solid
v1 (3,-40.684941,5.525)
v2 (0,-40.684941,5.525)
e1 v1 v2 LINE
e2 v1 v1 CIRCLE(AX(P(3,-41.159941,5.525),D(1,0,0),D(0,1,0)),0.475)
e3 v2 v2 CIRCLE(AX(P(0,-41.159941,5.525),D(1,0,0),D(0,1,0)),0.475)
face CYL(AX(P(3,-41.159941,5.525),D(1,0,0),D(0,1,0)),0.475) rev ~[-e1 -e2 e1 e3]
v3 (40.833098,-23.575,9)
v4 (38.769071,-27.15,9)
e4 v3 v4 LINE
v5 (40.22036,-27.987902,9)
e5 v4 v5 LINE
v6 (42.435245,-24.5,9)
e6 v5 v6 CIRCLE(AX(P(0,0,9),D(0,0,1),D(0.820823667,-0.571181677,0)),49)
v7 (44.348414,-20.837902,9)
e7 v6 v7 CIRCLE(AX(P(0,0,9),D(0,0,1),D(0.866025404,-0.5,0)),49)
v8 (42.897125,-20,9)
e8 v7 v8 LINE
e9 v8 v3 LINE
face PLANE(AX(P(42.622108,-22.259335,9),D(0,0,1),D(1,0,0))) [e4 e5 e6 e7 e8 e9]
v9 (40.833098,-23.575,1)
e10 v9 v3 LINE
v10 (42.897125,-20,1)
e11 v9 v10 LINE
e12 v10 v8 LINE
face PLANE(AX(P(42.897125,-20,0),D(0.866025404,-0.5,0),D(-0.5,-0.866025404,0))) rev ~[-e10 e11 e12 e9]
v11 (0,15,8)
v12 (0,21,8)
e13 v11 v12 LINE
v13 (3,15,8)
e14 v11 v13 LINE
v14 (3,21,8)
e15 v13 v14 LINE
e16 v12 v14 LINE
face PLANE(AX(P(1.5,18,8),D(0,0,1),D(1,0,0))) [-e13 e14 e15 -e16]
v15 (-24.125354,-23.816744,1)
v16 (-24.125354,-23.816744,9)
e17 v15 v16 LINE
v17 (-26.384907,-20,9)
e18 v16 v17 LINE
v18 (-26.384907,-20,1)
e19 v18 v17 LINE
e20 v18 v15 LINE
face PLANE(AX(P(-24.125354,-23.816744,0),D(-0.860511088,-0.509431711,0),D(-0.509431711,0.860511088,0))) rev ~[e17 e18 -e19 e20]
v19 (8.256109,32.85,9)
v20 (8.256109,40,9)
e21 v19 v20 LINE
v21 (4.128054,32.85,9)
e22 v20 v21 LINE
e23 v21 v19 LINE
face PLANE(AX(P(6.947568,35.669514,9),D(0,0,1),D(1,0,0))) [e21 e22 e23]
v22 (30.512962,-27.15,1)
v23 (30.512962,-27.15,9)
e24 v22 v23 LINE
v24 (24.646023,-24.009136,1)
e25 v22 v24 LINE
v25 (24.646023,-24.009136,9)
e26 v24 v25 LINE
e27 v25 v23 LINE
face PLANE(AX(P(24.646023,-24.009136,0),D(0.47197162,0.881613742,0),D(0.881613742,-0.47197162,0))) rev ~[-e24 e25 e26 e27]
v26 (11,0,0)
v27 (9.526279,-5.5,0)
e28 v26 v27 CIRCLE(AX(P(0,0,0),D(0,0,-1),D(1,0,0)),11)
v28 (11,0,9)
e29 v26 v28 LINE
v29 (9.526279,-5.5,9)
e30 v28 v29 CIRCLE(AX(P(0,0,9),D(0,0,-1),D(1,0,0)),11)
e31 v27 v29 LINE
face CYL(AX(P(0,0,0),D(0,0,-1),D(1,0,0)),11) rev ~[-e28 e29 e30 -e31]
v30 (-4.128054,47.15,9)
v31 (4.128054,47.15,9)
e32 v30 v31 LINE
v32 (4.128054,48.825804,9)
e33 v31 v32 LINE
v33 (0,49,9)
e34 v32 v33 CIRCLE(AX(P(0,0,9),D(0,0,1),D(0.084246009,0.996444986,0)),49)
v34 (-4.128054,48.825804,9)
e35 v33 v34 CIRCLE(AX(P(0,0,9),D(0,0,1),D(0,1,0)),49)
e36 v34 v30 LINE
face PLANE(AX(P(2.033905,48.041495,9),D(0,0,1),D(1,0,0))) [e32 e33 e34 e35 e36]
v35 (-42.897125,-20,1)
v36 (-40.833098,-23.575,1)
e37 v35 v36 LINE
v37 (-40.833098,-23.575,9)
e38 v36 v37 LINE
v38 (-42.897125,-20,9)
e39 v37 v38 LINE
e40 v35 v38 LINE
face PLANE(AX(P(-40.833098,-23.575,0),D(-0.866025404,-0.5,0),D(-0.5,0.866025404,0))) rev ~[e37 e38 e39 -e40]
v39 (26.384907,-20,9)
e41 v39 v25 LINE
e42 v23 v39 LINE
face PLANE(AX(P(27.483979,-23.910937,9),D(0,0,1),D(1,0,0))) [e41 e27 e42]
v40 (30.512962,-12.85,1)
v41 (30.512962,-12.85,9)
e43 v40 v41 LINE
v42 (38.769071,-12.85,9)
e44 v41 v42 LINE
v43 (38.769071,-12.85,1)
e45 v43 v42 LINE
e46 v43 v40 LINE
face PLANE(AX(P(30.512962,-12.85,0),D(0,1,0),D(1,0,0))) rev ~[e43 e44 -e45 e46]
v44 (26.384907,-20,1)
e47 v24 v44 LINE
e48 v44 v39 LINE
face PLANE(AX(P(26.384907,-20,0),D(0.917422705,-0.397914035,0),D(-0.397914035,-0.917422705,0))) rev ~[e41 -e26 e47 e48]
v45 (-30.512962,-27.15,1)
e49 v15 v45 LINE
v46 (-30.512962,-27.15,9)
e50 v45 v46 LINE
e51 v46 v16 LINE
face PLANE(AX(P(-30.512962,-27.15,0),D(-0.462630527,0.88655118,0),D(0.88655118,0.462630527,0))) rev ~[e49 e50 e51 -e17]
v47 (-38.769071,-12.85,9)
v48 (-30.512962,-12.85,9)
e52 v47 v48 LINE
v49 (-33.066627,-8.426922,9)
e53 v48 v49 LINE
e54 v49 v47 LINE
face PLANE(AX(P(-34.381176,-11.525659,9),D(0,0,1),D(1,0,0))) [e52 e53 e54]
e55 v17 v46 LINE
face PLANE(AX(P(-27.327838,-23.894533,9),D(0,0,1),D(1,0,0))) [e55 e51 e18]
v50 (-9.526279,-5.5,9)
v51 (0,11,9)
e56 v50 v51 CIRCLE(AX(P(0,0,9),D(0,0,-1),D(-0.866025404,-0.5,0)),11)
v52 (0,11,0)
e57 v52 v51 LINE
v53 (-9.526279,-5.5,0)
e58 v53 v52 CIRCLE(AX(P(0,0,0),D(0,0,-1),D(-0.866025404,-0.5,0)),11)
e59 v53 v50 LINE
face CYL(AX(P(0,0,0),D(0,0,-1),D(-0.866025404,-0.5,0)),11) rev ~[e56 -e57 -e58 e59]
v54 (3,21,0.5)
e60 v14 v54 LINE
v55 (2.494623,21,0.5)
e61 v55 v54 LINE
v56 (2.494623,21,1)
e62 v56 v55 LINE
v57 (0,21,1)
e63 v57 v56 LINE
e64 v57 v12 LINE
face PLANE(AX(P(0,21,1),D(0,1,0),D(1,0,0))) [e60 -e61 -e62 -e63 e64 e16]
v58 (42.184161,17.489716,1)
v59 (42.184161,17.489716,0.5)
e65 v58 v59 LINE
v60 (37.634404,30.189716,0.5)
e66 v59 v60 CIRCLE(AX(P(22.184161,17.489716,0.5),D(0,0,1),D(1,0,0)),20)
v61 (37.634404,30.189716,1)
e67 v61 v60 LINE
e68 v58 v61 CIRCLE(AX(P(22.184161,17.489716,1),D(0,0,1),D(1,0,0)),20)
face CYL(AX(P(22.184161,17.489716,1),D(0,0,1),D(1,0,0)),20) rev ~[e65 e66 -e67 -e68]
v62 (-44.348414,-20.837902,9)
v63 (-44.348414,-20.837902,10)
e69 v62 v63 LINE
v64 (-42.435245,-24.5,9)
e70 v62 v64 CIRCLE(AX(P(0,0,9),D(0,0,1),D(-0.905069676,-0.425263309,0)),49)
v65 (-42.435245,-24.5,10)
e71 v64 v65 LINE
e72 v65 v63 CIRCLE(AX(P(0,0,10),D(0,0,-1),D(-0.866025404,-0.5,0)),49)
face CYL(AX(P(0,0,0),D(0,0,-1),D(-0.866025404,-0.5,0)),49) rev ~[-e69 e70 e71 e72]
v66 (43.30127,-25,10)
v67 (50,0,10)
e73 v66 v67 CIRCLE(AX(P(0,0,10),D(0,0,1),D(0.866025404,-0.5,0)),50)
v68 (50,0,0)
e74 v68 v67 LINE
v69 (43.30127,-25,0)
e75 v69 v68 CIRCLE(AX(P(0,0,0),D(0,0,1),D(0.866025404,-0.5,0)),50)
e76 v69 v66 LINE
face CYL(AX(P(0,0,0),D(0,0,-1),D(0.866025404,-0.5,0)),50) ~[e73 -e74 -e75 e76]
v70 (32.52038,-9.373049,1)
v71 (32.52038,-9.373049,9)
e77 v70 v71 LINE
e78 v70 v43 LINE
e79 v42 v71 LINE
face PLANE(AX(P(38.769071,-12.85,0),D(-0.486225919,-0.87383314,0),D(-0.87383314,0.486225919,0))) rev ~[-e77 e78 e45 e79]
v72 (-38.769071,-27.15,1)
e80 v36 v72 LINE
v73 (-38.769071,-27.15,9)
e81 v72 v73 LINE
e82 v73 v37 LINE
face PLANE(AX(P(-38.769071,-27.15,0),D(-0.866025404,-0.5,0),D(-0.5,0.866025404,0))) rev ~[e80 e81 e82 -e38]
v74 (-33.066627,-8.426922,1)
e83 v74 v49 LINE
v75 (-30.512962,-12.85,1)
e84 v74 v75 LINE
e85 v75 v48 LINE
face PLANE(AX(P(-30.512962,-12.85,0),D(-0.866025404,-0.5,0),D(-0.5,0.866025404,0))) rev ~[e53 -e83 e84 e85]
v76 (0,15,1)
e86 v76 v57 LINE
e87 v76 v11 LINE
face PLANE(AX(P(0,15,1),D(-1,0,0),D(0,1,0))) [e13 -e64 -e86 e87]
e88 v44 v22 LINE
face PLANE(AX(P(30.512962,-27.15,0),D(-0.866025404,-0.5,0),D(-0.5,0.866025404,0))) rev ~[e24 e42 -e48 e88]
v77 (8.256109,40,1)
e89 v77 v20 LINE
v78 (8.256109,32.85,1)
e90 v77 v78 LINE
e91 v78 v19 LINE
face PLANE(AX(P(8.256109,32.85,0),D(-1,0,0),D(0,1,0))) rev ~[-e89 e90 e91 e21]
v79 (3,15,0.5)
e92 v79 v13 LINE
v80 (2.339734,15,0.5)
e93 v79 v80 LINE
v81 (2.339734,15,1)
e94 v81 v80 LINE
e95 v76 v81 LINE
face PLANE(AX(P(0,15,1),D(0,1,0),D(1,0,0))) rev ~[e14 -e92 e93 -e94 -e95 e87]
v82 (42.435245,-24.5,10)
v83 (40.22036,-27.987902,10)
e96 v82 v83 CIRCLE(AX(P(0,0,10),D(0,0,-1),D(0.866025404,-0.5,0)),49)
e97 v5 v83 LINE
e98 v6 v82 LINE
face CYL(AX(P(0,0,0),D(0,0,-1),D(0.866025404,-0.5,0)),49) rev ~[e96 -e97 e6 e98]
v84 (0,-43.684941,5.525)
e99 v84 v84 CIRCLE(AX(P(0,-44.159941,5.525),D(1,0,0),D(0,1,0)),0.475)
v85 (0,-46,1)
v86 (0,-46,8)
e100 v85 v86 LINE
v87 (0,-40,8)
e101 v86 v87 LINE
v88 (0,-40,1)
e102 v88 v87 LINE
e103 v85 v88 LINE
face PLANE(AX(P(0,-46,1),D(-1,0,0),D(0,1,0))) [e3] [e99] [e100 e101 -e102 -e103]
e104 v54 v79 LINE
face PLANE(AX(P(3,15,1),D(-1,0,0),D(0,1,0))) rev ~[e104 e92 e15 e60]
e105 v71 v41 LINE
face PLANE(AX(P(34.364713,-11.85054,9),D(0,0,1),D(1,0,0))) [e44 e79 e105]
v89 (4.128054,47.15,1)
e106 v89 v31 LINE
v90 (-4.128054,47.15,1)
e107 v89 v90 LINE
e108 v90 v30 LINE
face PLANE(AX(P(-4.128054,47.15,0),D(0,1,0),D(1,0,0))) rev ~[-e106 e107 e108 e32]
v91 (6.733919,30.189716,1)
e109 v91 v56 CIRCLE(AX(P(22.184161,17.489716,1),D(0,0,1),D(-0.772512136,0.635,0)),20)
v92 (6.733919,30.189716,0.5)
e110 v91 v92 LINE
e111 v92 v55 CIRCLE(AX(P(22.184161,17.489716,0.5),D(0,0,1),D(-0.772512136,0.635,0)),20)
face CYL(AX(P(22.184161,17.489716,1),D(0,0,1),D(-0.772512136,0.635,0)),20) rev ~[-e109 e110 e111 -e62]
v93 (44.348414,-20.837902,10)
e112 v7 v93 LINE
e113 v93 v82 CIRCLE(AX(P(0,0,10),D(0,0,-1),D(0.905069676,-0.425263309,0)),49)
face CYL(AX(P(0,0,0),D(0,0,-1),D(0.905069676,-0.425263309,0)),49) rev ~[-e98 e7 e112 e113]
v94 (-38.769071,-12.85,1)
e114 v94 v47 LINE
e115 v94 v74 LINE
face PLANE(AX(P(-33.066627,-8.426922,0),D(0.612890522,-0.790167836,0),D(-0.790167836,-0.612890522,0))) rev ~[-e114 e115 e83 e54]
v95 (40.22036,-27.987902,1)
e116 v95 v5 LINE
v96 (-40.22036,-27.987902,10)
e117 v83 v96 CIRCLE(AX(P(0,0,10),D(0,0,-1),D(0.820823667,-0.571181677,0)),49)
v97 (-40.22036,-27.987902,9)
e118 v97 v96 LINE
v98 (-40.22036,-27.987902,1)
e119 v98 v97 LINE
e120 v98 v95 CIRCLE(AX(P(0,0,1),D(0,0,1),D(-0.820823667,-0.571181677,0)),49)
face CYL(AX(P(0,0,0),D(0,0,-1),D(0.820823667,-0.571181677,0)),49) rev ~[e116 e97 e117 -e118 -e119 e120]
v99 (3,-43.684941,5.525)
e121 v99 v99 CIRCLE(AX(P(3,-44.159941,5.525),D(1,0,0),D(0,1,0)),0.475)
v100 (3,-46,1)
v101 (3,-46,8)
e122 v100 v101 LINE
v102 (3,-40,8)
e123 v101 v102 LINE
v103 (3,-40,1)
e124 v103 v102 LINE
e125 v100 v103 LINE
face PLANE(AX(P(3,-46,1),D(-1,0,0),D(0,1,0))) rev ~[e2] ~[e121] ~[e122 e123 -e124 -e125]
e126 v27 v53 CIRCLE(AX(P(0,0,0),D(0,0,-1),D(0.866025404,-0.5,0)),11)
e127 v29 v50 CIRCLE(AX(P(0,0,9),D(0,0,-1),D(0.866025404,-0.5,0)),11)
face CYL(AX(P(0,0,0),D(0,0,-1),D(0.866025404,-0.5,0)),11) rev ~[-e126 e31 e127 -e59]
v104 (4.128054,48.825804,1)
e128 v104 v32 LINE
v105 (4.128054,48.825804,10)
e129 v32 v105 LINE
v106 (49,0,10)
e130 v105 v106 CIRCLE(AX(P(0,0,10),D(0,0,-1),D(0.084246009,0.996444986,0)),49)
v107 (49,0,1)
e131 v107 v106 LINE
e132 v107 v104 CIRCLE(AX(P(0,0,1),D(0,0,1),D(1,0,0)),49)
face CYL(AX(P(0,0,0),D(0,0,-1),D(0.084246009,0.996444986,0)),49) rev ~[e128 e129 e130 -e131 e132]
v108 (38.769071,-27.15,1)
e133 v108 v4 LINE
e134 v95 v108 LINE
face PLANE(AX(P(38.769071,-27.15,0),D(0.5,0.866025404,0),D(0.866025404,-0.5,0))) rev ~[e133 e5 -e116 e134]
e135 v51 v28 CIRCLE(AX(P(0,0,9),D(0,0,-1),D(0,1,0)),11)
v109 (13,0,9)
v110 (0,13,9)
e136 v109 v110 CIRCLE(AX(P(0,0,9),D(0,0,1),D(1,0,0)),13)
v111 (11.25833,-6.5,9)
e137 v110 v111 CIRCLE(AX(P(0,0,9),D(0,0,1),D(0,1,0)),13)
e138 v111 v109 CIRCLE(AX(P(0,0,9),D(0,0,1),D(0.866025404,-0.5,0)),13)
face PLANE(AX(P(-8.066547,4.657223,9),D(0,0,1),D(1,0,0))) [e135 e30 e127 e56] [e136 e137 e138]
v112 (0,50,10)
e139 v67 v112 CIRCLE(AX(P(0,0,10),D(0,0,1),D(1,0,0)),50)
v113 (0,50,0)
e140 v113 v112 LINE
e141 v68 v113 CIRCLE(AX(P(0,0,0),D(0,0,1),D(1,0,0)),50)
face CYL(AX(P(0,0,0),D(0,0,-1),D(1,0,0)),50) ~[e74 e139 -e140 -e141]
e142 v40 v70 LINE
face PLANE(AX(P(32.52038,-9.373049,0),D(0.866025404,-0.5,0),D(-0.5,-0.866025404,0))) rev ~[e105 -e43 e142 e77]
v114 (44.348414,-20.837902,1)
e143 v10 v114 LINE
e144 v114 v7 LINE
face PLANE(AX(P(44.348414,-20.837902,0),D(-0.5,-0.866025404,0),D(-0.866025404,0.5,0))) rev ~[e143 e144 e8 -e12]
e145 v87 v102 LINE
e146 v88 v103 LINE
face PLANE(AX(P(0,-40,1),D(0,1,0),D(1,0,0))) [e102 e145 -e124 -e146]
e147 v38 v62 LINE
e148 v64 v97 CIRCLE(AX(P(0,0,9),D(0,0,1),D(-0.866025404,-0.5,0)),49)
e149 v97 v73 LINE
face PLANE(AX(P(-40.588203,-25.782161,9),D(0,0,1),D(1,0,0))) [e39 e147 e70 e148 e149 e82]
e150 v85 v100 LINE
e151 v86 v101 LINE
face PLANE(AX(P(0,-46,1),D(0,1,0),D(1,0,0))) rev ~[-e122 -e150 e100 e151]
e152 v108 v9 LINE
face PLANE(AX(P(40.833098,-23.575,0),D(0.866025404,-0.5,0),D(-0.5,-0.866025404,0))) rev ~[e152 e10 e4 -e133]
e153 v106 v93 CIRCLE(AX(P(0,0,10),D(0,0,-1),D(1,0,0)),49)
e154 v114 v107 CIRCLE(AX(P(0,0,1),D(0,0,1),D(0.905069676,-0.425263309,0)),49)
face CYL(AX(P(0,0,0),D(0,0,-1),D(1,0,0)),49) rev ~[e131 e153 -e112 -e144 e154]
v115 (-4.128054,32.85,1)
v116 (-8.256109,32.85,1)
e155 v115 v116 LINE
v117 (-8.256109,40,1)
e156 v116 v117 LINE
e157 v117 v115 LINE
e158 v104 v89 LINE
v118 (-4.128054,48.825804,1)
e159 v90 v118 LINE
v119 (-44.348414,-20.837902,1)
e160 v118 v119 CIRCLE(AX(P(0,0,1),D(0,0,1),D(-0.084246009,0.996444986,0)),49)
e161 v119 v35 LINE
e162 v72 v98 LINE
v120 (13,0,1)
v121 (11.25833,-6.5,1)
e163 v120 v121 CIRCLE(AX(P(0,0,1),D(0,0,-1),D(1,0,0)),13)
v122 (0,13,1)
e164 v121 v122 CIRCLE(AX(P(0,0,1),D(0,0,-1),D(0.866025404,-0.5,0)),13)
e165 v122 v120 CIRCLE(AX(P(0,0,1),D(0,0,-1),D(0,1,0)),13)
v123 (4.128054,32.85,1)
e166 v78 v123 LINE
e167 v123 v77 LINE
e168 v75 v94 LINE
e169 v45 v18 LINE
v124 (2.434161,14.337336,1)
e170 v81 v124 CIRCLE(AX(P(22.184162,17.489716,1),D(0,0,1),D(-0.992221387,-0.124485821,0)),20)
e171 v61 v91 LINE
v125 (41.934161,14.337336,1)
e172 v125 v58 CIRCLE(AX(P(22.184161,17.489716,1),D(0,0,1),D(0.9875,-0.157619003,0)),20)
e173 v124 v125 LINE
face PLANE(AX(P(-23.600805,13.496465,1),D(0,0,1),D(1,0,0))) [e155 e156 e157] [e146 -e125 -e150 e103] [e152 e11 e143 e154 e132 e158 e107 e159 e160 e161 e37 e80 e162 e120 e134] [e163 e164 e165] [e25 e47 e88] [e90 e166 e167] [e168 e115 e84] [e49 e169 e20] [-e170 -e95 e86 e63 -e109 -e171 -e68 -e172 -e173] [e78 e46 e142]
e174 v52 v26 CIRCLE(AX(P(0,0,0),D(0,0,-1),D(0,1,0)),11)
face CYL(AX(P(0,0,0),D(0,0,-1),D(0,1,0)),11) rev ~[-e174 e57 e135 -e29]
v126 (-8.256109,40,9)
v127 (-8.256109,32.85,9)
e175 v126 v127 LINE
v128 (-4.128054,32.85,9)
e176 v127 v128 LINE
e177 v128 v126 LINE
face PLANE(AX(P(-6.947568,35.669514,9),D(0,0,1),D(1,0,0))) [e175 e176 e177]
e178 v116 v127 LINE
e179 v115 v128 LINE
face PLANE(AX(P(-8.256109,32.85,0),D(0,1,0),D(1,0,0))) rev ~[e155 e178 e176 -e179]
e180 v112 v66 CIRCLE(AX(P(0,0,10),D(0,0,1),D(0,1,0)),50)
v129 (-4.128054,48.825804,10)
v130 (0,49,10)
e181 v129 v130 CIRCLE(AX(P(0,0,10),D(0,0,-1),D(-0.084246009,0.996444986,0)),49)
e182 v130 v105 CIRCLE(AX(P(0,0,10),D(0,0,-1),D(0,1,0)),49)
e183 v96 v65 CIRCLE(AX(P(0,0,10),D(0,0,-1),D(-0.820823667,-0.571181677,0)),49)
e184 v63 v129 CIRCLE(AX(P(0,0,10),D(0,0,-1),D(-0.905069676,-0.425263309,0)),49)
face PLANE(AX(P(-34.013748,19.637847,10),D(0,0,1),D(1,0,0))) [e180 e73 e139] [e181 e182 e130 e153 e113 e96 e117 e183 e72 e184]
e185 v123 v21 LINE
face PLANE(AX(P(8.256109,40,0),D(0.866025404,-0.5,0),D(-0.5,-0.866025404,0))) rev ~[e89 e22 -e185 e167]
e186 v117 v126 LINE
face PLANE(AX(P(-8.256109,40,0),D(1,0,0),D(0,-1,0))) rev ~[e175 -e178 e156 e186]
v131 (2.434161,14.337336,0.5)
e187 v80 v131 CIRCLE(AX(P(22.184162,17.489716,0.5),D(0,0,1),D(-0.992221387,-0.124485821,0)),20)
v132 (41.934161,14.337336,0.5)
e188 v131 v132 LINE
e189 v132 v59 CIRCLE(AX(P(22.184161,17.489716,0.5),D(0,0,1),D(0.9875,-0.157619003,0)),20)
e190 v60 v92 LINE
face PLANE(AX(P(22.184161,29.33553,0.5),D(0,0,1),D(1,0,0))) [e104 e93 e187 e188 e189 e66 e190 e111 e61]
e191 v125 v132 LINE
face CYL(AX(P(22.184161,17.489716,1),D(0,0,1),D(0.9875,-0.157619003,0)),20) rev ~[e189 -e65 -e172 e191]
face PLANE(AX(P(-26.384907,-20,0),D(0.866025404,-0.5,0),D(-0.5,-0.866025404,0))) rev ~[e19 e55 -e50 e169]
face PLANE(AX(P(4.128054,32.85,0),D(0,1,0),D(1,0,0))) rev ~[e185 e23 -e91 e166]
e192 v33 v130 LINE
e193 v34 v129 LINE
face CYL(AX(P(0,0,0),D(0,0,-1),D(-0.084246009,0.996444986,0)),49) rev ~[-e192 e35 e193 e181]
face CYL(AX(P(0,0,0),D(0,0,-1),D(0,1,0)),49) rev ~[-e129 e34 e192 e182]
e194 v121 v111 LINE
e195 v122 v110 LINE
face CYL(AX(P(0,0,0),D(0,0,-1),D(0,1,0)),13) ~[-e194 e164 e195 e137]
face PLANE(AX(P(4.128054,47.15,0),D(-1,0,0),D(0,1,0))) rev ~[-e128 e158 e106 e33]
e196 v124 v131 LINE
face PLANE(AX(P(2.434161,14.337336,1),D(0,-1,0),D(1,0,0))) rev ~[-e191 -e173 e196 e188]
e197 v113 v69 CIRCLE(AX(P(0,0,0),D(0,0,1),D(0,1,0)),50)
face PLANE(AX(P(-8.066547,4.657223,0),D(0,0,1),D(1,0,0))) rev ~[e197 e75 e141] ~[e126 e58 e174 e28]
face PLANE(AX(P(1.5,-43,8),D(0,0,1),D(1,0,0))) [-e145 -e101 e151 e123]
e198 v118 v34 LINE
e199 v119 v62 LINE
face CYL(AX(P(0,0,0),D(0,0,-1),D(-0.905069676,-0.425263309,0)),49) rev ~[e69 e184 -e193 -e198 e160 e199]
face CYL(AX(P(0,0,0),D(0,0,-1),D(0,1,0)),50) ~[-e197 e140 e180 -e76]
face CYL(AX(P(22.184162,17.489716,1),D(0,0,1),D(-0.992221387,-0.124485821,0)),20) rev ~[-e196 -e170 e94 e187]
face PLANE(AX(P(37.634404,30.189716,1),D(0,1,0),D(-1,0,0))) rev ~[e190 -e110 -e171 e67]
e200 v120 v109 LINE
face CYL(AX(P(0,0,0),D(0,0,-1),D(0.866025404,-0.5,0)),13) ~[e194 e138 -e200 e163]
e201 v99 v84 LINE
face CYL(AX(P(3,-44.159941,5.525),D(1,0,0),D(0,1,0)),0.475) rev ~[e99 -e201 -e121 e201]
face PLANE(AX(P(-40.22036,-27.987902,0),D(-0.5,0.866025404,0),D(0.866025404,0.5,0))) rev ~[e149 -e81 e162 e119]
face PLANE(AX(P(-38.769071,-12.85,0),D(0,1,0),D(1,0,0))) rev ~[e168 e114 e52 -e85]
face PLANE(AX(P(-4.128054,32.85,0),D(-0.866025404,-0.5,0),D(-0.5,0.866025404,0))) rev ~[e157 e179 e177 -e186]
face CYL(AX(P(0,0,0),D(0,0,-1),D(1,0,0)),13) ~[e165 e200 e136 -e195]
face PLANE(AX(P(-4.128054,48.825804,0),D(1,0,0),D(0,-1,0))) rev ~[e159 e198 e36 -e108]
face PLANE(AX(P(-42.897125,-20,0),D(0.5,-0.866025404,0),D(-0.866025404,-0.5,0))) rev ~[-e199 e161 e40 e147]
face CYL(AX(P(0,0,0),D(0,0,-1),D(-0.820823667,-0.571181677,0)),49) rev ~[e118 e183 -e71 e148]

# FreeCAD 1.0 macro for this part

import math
import FreeCAD as App
import Part
import Sketcher

V = App.Vector
Q = App.Units.Quantity


def add_polygon(sketch, points):
    """Adds a closed chain of lines whose ends are joined by coincident constraints."""
    first, n = sketch.GeometryCount, len(points)
    for a, b in zip(points, points[1:] + points[:1]):
        sketch.addGeometry(Part.LineSegment(App.Vector(*a, 0), App.Vector(*b, 0)), False)
    for i in range(n):
        sketch.addConstraint(Sketcher.Constraint("Coincident", first + i, 2, first + (i + 1) % n, 1))

doc = App.newDocument("Part")
body = doc.addObject("PartDesign::Body", "Body")

# Sketch on XY plane
sketch1 = doc.addObject("Sketcher::SketchObject", "Sketch")
body.addObject(sketch1)
sketch1.AttachmentSupport = (doc.XY_Plane, [""])
sketch1.MapMode = "FlatFace"
sketch1.addGeometry(Part.ArcOfCircle(Part.Circle(V(0, 0, 0), V(0, 0, 1), 50), math.radians(90), math.radians(330)), False)
sketch1.addGeometry(Part.ArcOfCircle(Part.Circle(V(0, 0, 0), V(0, 0, 1), 50), math.radians(-30), math.radians(0)), False)
sketch1.addGeometry(Part.ArcOfCircle(Part.Circle(V(0, 0, 0), V(0, 0, 1), 50), math.radians(0), math.radians(90)), False)
sketch1.addGeometry(Part.ArcOfCircle(Part.Circle(V(0, 0, 0), V(0, 0, 1), 49), math.radians(90), math.radians(94.83)), False)
sketch1.addGeometry(Part.ArcOfCircle(Part.Circle(V(0, 0, 0), V(0, 0, 1), 49), math.radians(85.17), math.radians(90)), False)
sketch1.addGeometry(Part.ArcOfCircle(Part.Circle(V(0, 0, 0), V(0, 0, 1), 49), math.radians(0), math.radians(85)), False)
sketch1.addGeometry(Part.ArcOfCircle(Part.Circle(V(0, 0, 0), V(0, 0, 1), 49), math.radians(-25), math.radians(0)), False)
sketch1.addGeometry(Part.ArcOfCircle(Part.Circle(V(0, 0, 0), V(0, 0, 1), 49), math.radians(-30), math.radians(-25.17)), False)
sketch1.addGeometry(Part.ArcOfCircle(Part.Circle(V(0, 0, 0), V(0, 0, 1), 49), math.radians(-34.83), math.radians(-30)), False)
sketch1.addGeometry(Part.ArcOfCircle(Part.Circle(V(0, 0, 0), V(0, 0, 1), 49), math.radians(-145), math.radians(-35)), False)
sketch1.addGeometry(Part.ArcOfCircle(Part.Circle(V(0, 0, 0), V(0, 0, 1), 49), math.radians(-150), math.radians(-145.17)), False)
sketch1.addGeometry(Part.ArcOfCircle(Part.Circle(V(0, 0, 0), V(0, 0, 1), 49), math.radians(-154.83), math.radians(-150)), False)
sketch1.addGeometry(Part.ArcOfCircle(Part.Circle(V(0, 0, 0), V(0, 0, 1), 49), math.radians(95), math.radians(205)), False)
sketch1.addConstraint(Sketcher.Constraint("Tangent", 0, 2, 1, 1))
sketch1.addConstraint(Sketcher.Constraint("Tangent", 1, 2, 2, 1))
sketch1.addConstraint(Sketcher.Constraint("Tangent", 2, 2, 0, 1))
sketch1.addConstraint(Sketcher.Constraint("Tangent", 3, 1, 4, 2))
sketch1.addConstraint(Sketcher.Constraint("Tangent", 4, 1, 5, 2))
sketch1.addConstraint(Sketcher.Constraint("Tangent", 5, 1, 6, 2))
sketch1.addConstraint(Sketcher.Constraint("Tangent", 6, 1, 7, 2))
sketch1.addConstraint(Sketcher.Constraint("Tangent", 7, 1, 8, 2))
sketch1.addConstraint(Sketcher.Constraint("Tangent", 8, 1, 9, 2))
sketch1.addConstraint(Sketcher.Constraint("Tangent", 9, 1, 10, 2))
sketch1.addConstraint(Sketcher.Constraint("Tangent", 10, 1, 11, 2))
sketch1.addConstraint(Sketcher.Constraint("Tangent", 11, 1, 12, 2))
sketch1.addConstraint(Sketcher.Constraint("Tangent", 12, 1, 3, 2))
sketch1.addConstraint(Sketcher.Constraint("Coincident", 0, 3, -1, 1))
sketch1.addConstraint(Sketcher.Constraint("Coincident", 3, 3, -1, 1))
sketch1.addConstraint(Sketcher.Constraint("Coincident", 5, 3, -1, 1))
sketch1.addConstraint(Sketcher.Constraint("Coincident", 7, 3, -1, 1))
sketch1.addConstraint(Sketcher.Constraint("Coincident", 9, 3, -1, 1))
sketch1.addConstraint(Sketcher.Constraint("Equal", 9, 10))
sketch1.addConstraint(Sketcher.Constraint("PointOnObject", 1, 2, -1))
sketch1.addConstraint(Sketcher.Constraint("PointOnObject", 2, 2, -2))
sketch1.addConstraint(Sketcher.Constraint("PointOnObject", 3, 1, -2))
sketch1.addConstraint(Sketcher.Constraint("PointOnObject", 5, 1, -1))
sketch1.addConstraint(Sketcher.Constraint("Horizontal", 8, 1, 9, 1))
sketch1.addConstraint(Sketcher.Constraint("Horizontal", 7, 1, 10, 1))
sketch1.addConstraint(Sketcher.Constraint("Horizontal", 6, 1, 11, 1))
sketch1.addConstraint(Sketcher.Constraint("Horizontal", 4, 1, 12, 1))
sketch1.addConstraint(Sketcher.Constraint("Radius", 0, 50.0))
sketch1.addConstraint(Sketcher.Constraint("Radius", 3, 49.0))
sketch1.addConstraint(Sketcher.Constraint("DistanceY", 0, 2, -1, 1, 25.0))
sketch1.addConstraint(Sketcher.Constraint("DistanceY", 7, 1, -1, 1, 24.5))
sketch1.addConstraint(Sketcher.Constraint("DistanceY", 8, 1, 6, 1, 7.15))
sketch1.addConstraint(Sketcher.Constraint("DistanceX", -1, 1, 8, 1, 40.22036))
sketch1.addConstraint(Sketcher.Constraint("DistanceX", 12, 1, 4, 1, 8.256109))
pad1 = doc.addObject("PartDesign::Pad", "Pad")
body.addObject(pad1)
pad1.Profile = sketch1
pad1.Length = 10

# Sketch on XY plane
sketch2 = doc.addObject("Sketcher::SketchObject", "Sketch001")
body.addObject(sketch2)
sketch2.AttachmentSupport = (doc.XY_Plane, [""])
sketch2.MapMode = "FlatFace"
sketch2.addGeometry(Part.LineSegment(V(-4.1, 47.1, 0), V(-4.1, 48.8, 0)), False)  # 0
sketch2.addGeometry(Part.ArcOfCircle(Part.Circle(V(0, 0, 0), V(0, 0, 1), 49), math.radians(95), math.radians(205)), False)  # 1
sketch2.addGeometry(Part.LineSegment(V(-44.3, -20.8, 0), V(-42.9, -20, 0)), False)  # 2
sketch2.addGeometry(Part.LineSegment(V(-42.9, -20, 0), V(-40.8, -23.6, 0)), False)  # 3
sketch2.addGeometry(Part.LineSegment(V(-40.8, -23.6, 0), V(-38.8, -27.1, 0)), False)  # 4
sketch2.addGeometry(Part.LineSegment(V(-38.8, -27.1, 0), V(-40.2, -28, 0)), False)  # 5
sketch2.addGeometry(Part.ArcOfCircle(Part.Circle(V(0, 0, 0), V(0, 0, 1), 49), math.radians(-145), math.radians(-35)), False)  # 6
sketch2.addGeometry(Part.LineSegment(V(40.2, -28, 0), V(38.8, -27.1, 0)), False)  # 7
sketch2.addGeometry(Part.LineSegment(V(38.8, -27.1, 0), V(40.8, -23.6, 0)), False)  # 8
sketch2.addGeometry(Part.LineSegment(V(40.8, -23.6, 0), V(42.9, -20, 0)), False)  # 9
sketch2.addGeometry(Part.LineSegment(V(42.9, -20, 0), V(44.3, -20.8, 0)), False)  # 10
sketch2.addGeometry(Part.ArcOfCircle(Part.Circle(V(0, 0, 0), V(0, 0, 1), 49), math.radians(-25), math.radians(0)), False)  # 11
sketch2.addGeometry(Part.ArcOfCircle(Part.Circle(V(0, 0, 0), V(0, 0, 1), 49), math.radians(0), math.radians(85)), False)  # 12
sketch2.addGeometry(Part.LineSegment(V(4.1, 48.8, 0), V(4.1, 47.1, 0)), False)  # 13
sketch2.addGeometry(Part.LineSegment(V(4.1, 47.1, 0), V(-4.1, 47.1, 0)), False)  # 14
add_polygon(sketch2, [(-8.3, 32.9), (-8.3, 40), (-4.1, 32.9)])  # lines 15-17
add_polygon(sketch2, [(8.3, 40), (8.3, 32.9), (4.1, 32.9)])  # lines 18-20
add_polygon(sketch2, [(30.5, -27.1), (24.6, -24), (26.4, -20)])  # lines 21-23
add_polygon(sketch2, [(30.5, -12.8), (32.5, -9.4), (38.8, -12.8)])  # lines 24-26
add_polygon(sketch2, [(-26.4, -20), (-24.1, -23.8), (-30.5, -27.1)])  # lines 27-29
add_polygon(sketch2, [(-38.8, -12.8), (-33.1, -8.4), (-30.5, -12.8)])  # lines 30-32
sketch2.addGeometry(Part.ArcOfCircle(Part.Circle(V(0, 0, 0), V(0, 0, 1), 13), math.radians(90), math.radians(330)), False)  # 33
sketch2.addGeometry(Part.ArcOfCircle(Part.Circle(V(0, 0, 0), V(0, 0, 1), 13), math.radians(0), math.radians(90)), False)  # 34
sketch2.addGeometry(Part.ArcOfCircle(Part.Circle(V(0, 0, 0), V(0, 0, 1), 13), math.radians(-30), math.radians(0)), False)  # 35
sketch2.addConstraint(Sketcher.Constraint("Coincident", 0, 2, 1, 1))
sketch2.addConstraint(Sketcher.Constraint("Coincident", 1, 2, 2, 1))
sketch2.addConstraint(Sketcher.Constraint("Coincident", 2, 2, 3, 1))
sketch2.addConstraint(Sketcher.Constraint("Coincident", 3, 2, 4, 1))
sketch2.addConstraint(Sketcher.Constraint("Coincident", 4, 2, 5, 1))
sketch2.addConstraint(Sketcher.Constraint("Coincident", 5, 2, 6, 1))
sketch2.addConstraint(Sketcher.Constraint("Coincident", 6, 2, 7, 1))
sketch2.addConstraint(Sketcher.Constraint("Coincident", 7, 2, 8, 1))
sketch2.addConstraint(Sketcher.Constraint("Coincident", 8, 2, 9, 1))
sketch2.addConstraint(Sketcher.Constraint("Coincident", 9, 2, 10, 1))
sketch2.addConstraint(Sketcher.Constraint("Coincident", 10, 2, 11, 1))
sketch2.addConstraint(Sketcher.Constraint("Tangent", 11, 2, 12, 1))
sketch2.addConstraint(Sketcher.Constraint("Coincident", 12, 2, 13, 1))
sketch2.addConstraint(Sketcher.Constraint("Coincident", 13, 2, 14, 1))
sketch2.addConstraint(Sketcher.Constraint("Coincident", 14, 2, 0, 1))
sketch2.addConstraint(Sketcher.Constraint("Tangent", 33, 1, 34, 2))
sketch2.addConstraint(Sketcher.Constraint("Tangent", 34, 1, 35, 2))
sketch2.addConstraint(Sketcher.Constraint("Tangent", 35, 1, 33, 2))
sketch2.addConstraint(Sketcher.Constraint("Vertical", 0))
sketch2.addConstraint(Sketcher.Constraint("Vertical", 13))
sketch2.addConstraint(Sketcher.Constraint("Horizontal", 14))
sketch2.addConstraint(Sketcher.Constraint("Vertical", 15))
sketch2.addConstraint(Sketcher.Constraint("Horizontal", 17))
sketch2.addConstraint(Sketcher.Constraint("Vertical", 18))
sketch2.addConstraint(Sketcher.Constraint("Horizontal", 19))
sketch2.addConstraint(Sketcher.Constraint("Horizontal", 26))
sketch2.addConstraint(Sketcher.Constraint("Horizontal", 32))
sketch2.addConstraint(Sketcher.Constraint("Coincident", 1, 3, -1, 1))
sketch2.addConstraint(Sketcher.Constraint("Coincident", 6, 3, -1, 1))
sketch2.addConstraint(Sketcher.Constraint("Coincident", 11, 3, -1, 1))
sketch2.addConstraint(Sketcher.Constraint("Coincident", 33, 3, -1, 1))
sketch2.addConstraint(Sketcher.Constraint("Equal", 1, 6))
sketch2.addConstraint(Sketcher.Constraint("Equal", 6, 11))
sketch2.addConstraint(Sketcher.Constraint("Equal", 11, 12))
sketch2.addConstraint(Sketcher.Constraint("Symmetric", 4, 2, 7, 2, -2))
sketch2.addConstraint(Sketcher.Constraint("Symmetric", 3, 2, 8, 2, -2))
sketch2.addConstraint(Sketcher.Constraint("Symmetric", 2, 2, 9, 2, -2))
sketch2.addConstraint(Sketcher.Constraint("Symmetric", 17, 2, 18, 2, -2))
sketch2.addConstraint(Sketcher.Constraint("Symmetric", 23, 2, 28, 2, -2))
sketch2.addConstraint(Sketcher.Constraint("Symmetric", 22, 2, 29, 2, -2))
sketch2.addConstraint(Sketcher.Constraint("Symmetric", 26, 2, 31, 2, -2))
sketch2.addConstraint(Sketcher.Constraint("PointOnObject", 11, 2, -1))
sketch2.addConstraint(Sketcher.Constraint("PointOnObject", 33, 1, -2))
sketch2.addConstraint(Sketcher.Constraint("PointOnObject", 34, 1, -1))
sketch2.addConstraint(Sketcher.Constraint("Perpendicular", 2, 3))
sketch2.addConstraint(Sketcher.Constraint("Parallel", 3, 4))
sketch2.addConstraint(Sketcher.Constraint("Perpendicular", 4, 5))
sketch2.addConstraint(Sketcher.Constraint("Perpendicular", 7, 8))
sketch2.addConstraint(Sketcher.Constraint("Perpendicular", 9, 10))
sketch2.addConstraint(Sketcher.Constraint("Perpendicular", 5, 16))
sketch2.addConstraint(Sketcher.Constraint("Perpendicular", 10, 20))
sketch2.addConstraint(Sketcher.Constraint("Parallel", 16, 23))
sketch2.addConstraint(Sketcher.Constraint("Parallel", 20, 24))
sketch2.addConstraint(Sketcher.Constraint("Parallel", 23, 31))
sketch2.addConstraint(Sketcher.Constraint("Horizontal", 0, 2, 12, 2))
sketch2.addConstraint(Sketcher.Constraint("Horizontal", 15, 2, 20, 2))
sketch2.addConstraint(Sketcher.Constraint("Horizontal", 9, 2, 22, 2))
sketch2.addConstraint(Sketcher.Constraint("Horizontal", 7, 2, 23, 2))
sketch2.addConstraint(Sketcher.Constraint("Vertical", 14, 2, 16, 2))
sketch2.addConstraint(Sketcher.Constraint("Vertical", 7, 2, 25, 2))
sketch2.addConstraint(Sketcher.Constraint("Vertical", 23, 2, 26, 2))
sketch2.addConstraint(Sketcher.Constraint("Vertical", 4, 2, 32, 2))
sketch2.addConstraint(Sketcher.Constraint("Equal", 14, 26))
sketch2.addConstraint(Sketcher.Constraint("Equal", 3, 4))
sketch2.addConstraint(Sketcher.Constraint("Equal", 2, 5))
sketch2.addConstraint(Sketcher.Constraint("Equal", 20, 23))
sketch2.addConstraint(Sketcher.Constraint("Radius", 1, 49.0))
sketch2.addConstraint(Sketcher.Constraint("Radius", 33, 13.0))
sketch2.addConstraint(Sketcher.Constraint("Angle", 2, Q("30 deg")))
sketch2.addConstraint(Sketcher.Constraint("DistanceY", 2, 2, -1, 1, 20.0))
sketch2.addConstraint(Sketcher.Constraint("DistanceY", -1, 1, 15, 2, 40.0))
sketch2.addConstraint(Sketcher.Constraint("DistanceY", 15, 1, 15, 2, 7.15))
sketch2.addConstraint(Sketcher.Constraint("DistanceY", 35, 1, -1, 1, 6.5))
sketch2.addConstraint(Sketcher.Constraint("DistanceY", 16, 2, 14, 2, 14.3))
sketch2.addConstraint(Sketcher.Constraint("DistanceY", 28, 2, 31, 2, 14.3))
sketch2.addConstraint(Sketcher.Constraint("Distance", 22, 4.369999))
sketch2.addConstraint(Sketcher.Constraint("DistanceX", 14, 2, 14, 1, 8.256109))
sketch2.addConstraint(Sketcher.Constraint("DistanceX", 21, 2, 9, 2, 18.251102))
sketch2.addConstraint(Sketcher.Constraint("DistanceX", 2, 2, 30, 2, 9.830498))
sketch2.addConstraint(Sketcher.Constraint("Distance", 27, 4.435438))
sketch2.addConstraint(Sketcher.Constraint("DistanceX", -1, 1, 24, 2, 32.52038))
sketch2.addConstraint(Sketcher.Constraint("DistanceY", 5, 2, 27, 2, 4.171158))
pad2 = doc.addObject("PartDesign::Pad", "Pad001")
body.addObject(pad2)
pad2.Profile = sketch2
pad2.Length = 1

# Sketch on XY plane
sketch3 = doc.addObject("Sketcher::SketchObject", "Sketch002")
body.addObject(sketch3)
sketch3.AttachmentSupport = (doc.XY_Plane, [""])
sketch3.MapMode = "FlatFace"
sketch3.addGeometry(Part.ArcOfCircle(Part.Circle(V(0, 0, 0), V(0, 0, 1), 13), math.radians(90), math.radians(330)), False)  # 0
sketch3.addGeometry(Part.ArcOfCircle(Part.Circle(V(0, 0, 0), V(0, 0, 1), 13), math.radians(-30), math.radians(0)), False)  # 1
sketch3.addGeometry(Part.ArcOfCircle(Part.Circle(V(0, 0, 0), V(0, 0, 1), 13), math.radians(0), math.radians(90)), False)  # 2
sketch3.addGeometry(Part.ArcOfCircle(Part.Circle(V(0, 0, 0), V(0, 0, 1), 11), math.radians(90), math.radians(210)), False)  # 3
sketch3.addGeometry(Part.ArcOfCircle(Part.Circle(V(0, 0, 0), V(0, 0, 1), 11), math.radians(0), math.radians(90)), False)  # 4
sketch3.addGeometry(Part.ArcOfCircle(Part.Circle(V(0, 0, 0), V(0, 0, 1), 11), math.radians(-30), math.radians(0)), False)  # 5
sketch3.addGeometry(Part.ArcOfCircle(Part.Circle(V(0, 0, 0), V(0, 0, 1), 11), math.radians(-150), math.radians(-30)), False)  # 6
add_polygon(sketch3, [(-24.1, -23.8), (-26.4, -20), (-30.5, -27.1)])  # lines 7-9
sketch3.addGeometry(Part.LineSegment(V(-38.8, -27.1, 0), V(-40.8, -23.6, 0)), False)  # 10
sketch3.addGeometry(Part.LineSegment(V(-40.8, -23.6, 0), V(-42.9, -20, 0)), False)  # 11
sketch3.addGeometry(Part.LineSegment(V(-42.9, -20, 0), V(-44.3, -20.8, 0)), False)  # 12
sketch3.addGeometry(Part.ArcOfCircle(Part.Circle(V(0, 0, 0), V(0, 0, 1), 49), math.radians(-154.83), math.radians(-150)), False)  # 13
sketch3.addGeometry(Part.ArcOfCircle(Part.Circle(V(0, 0, 0), V(0, 0, 1), 49), math.radians(-150), math.radians(-145.17)), False)  # 14
sketch3.addGeometry(Part.LineSegment(V(-40.2, -28, 0), V(-38.8, -27.1, 0)), False)  # 15
add_polygon(sketch3, [(-38.8, -12.8), (-30.5, -12.8), (-33.1, -8.4)])  # lines 16-18
add_polygon(sketch3, [(8.3, 40), (4.1, 32.9), (8.3, 32.9)])  # lines 19-21
add_polygon(sketch3, [(-8.3, 32.9), (-4.1, 32.9), (-8.3, 40)])  # lines 22-24
sketch3.addGeometry(Part.LineSegment(V(4.1, 47.1, 0), V(4.1, 48.8, 0)), False)  # 25
sketch3.addGeometry(Part.ArcOfCircle(Part.Circle(V(0, 0, 0), V(0, 0, 1), 49), math.radians(85.17), math.radians(90)), False)  # 26
sketch3.addGeometry(Part.ArcOfCircle(Part.Circle(V(0, 0, 0), V(0, 0, 1), 49), math.radians(90), math.radians(94.83)), False)  # 27
sketch3.addGeometry(Part.LineSegment(V(-4.1, 48.8, 0), V(-4.1, 47.1, 0)), False)  # 28
sketch3.addGeometry(Part.LineSegment(V(-4.1, 47.1, 0), V(4.1, 47.1, 0)), False)  # 29
add_polygon(sketch3, [(30.5, -27.1), (26.4, -20), (24.6, -24)])  # lines 30-32
add_polygon(sketch3, [(32.5, -9.4), (30.5, -12.8), (38.8, -12.8)])  # lines 33-35
sketch3.addGeometry(Part.LineSegment(V(42.9, -20, 0), V(40.8, -23.6, 0)), False)  # 36
sketch3.addGeometry(Part.LineSegment(V(40.8, -23.6, 0), V(38.8, -27.1, 0)), False)  # 37
sketch3.addGeometry(Part.LineSegment(V(38.8, -27.1, 0), V(40.2, -28, 0)), False)  # 38
sketch3.addGeometry(Part.ArcOfCircle(Part.Circle(V(0, 0, 0), V(0, 0, 1), 49), math.radians(-34.83), math.radians(-30)), False)  # 39
sketch3.addGeometry(Part.ArcOfCircle(Part.Circle(V(0, 0, 0), V(0, 0, 1), 49), math.radians(-30), math.radians(-25.17)), False)  # 40
sketch3.addGeometry(Part.LineSegment(V(44.3, -20.8, 0), V(42.9, -20, 0)), False)  # 41
sketch3.addConstraint(Sketcher.Constraint("Tangent", 0, 2, 1, 1))
sketch3.addConstraint(Sketcher.Constraint("Tangent", 1, 2, 2, 1))
sketch3.addConstraint(Sketcher.Constraint("Tangent", 2, 2, 0, 1))
sketch3.addConstraint(Sketcher.Constraint("Tangent", 3, 1, 4, 2))
sketch3.addConstraint(Sketcher.Constraint("Tangent", 4, 1, 5, 2))
sketch3.addConstraint(Sketcher.Constraint("Tangent", 5, 1, 6, 2))
sketch3.addConstraint(Sketcher.Constraint("Tangent", 6, 1, 3, 2))
sketch3.addConstraint(Sketcher.Constraint("Coincident", 10, 2, 11, 1))
sketch3.addConstraint(Sketcher.Constraint("Coincident", 11, 2, 12, 1))
sketch3.addConstraint(Sketcher.Constraint("Coincident", 12, 2, 13, 1))
sketch3.addConstraint(Sketcher.Constraint("Tangent", 13, 2, 14, 1))
sketch3.addConstraint(Sketcher.Constraint("Coincident", 14, 2, 15, 1))
sketch3.addConstraint(Sketcher.Constraint("Coincident", 15, 2, 10, 1))
sketch3.addConstraint(Sketcher.Constraint("Coincident", 25, 2, 26, 1))
sketch3.addConstraint(Sketcher.Constraint("Tangent", 26, 2, 27, 1))
sketch3.addConstraint(Sketcher.Constraint("Coincident", 27, 2, 28, 1))
sketch3.addConstraint(Sketcher.Constraint("Coincident", 28, 2, 29, 1))
sketch3.addConstraint(Sketcher.Constraint("Coincident", 29, 2, 25, 1))
sketch3.addConstraint(Sketcher.Constraint("Coincident", 36, 2, 37, 1))
sketch3.addConstraint(Sketcher.Constraint("Coincident", 37, 2, 38, 1))
sketch3.addConstraint(Sketcher.Constraint("Coincident", 38, 2, 39, 1))
sketch3.addConstraint(Sketcher.Constraint("Tangent", 39, 2, 40, 1))
sketch3.addConstraint(Sketcher.Constraint("Coincident", 40, 2, 41, 1))
sketch3.addConstraint(Sketcher.Constraint("Coincident", 41, 2, 36, 1))
sketch3.addConstraint(Sketcher.Constraint("Horizontal", 16))
sketch3.addConstraint(Sketcher.Constraint("Horizontal", 20))
sketch3.addConstraint(Sketcher.Constraint("Vertical", 21))
sketch3.addConstraint(Sketcher.Constraint("Horizontal", 22))
sketch3.addConstraint(Sketcher.Constraint("Vertical", 24))
sketch3.addConstraint(Sketcher.Constraint("Vertical", 25))
sketch3.addConstraint(Sketcher.Constraint("Vertical", 28))
sketch3.addConstraint(Sketcher.Constraint("Horizontal", 29))
sketch3.addConstraint(Sketcher.Constraint("Horizontal", 34))
sketch3.addConstraint(Sketcher.Constraint("Coincident", 0, 3, -1, 1))
sketch3.addConstraint(Sketcher.Constraint("Coincident", 3, 3, -1, 1))
sketch3.addConstraint(Sketcher.Constraint("Coincident", 13, 3, -1, 1))
sketch3.addConstraint(Sketcher.Constraint("Coincident", 26, 3, -1, 1))
sketch3.addConstraint(Sketcher.Constraint("Coincident", 39, 3, -1, 1))
sketch3.addConstraint(Sketcher.Constraint("Equal", 3, 4))
sketch3.addConstraint(Sketcher.Constraint("Equal", 13, 14))
sketch3.addConstraint(Sketcher.Constraint("Equal", 14, 26))
sketch3.addConstraint(Sketcher.Constraint("Equal", 26, 27))
sketch3.addConstraint(Sketcher.Constraint("Equal", 27, 39))
sketch3.addConstraint(Sketcher.Constraint("Equal", 39, 40))
sketch3.addConstraint(Sketcher.Constraint("Symmetric", 19, 2, 22, 2, -2))
sketch3.addConstraint(Sketcher.Constraint("Symmetric", 21, 2, 23, 2, -2))
sketch3.addConstraint(Sketcher.Constraint("Symmetric", 7, 2, 30, 2, -2))
sketch3.addConstraint(Sketcher.Constraint("Symmetric", 8, 2, 32, 2, -2))
sketch3.addConstraint(Sketcher.Constraint("Symmetric", 16, 2, 33, 2, -2))
sketch3.addConstraint(Sketcher.Constraint("Symmetric", 10, 2, 36, 2, -2))
sketch3.addConstraint(Sketcher.Constraint("Symmetric", 15, 2, 37, 2, -2))
sketch3.addConstraint(Sketcher.Constraint("Symmetric", 11, 2, 41, 2, -2))
sketch3.addConstraint(Sketcher.Constraint("PointOnObject", 1, 2, -1))
sketch3.addConstraint(Sketcher.Constraint("PointOnObject", 2, 2, -2))
sketch3.addConstraint(Sketcher.Constraint("PointOnObject", 3, 1, -2))
sketch3.addConstraint(Sketcher.Constraint("PointOnObject", 4, 1, -1))
sketch3.addConstraint(Sketcher.Constraint("PointOnObject", 26, 2, -2))
sketch3.addConstraint(Sketcher.Constraint("Parallel", 10, 11))
sketch3.addConstraint(Sketcher.Constraint("Perpendicular", 11, 12))
sketch3.addConstraint(Sketcher.Constraint("Parallel", 12, 15))
sketch3.addConstraint(Sketcher.Constraint("Perpendicular", 15, 17))
sketch3.addConstraint(Sketcher.Constraint("Parallel", 8, 19))
sketch3.addConstraint(Sketcher.Constraint("Parallel", 17, 23))
sketch3.addConstraint(Sketcher.Constraint("Parallel", 19, 33))
sketch3.addConstraint(Sketcher.Constraint("Perpendicular", 37, 38))
sketch3.addConstraint(Sketcher.Constraint("Parallel", 38, 41))
sketch3.addConstraint(Sketcher.Constraint("Horizontal", 5, 1, 6, 1))
sketch3.addConstraint(Sketcher.Constraint("Horizontal", 7, 2, 11, 2))
sketch3.addConstraint(Sketcher.Constraint("Horizontal", 8, 2, 15, 2))
sketch3.addConstraint(Sketcher.Constraint("Horizontal", 25, 2, 27, 2))
sketch3.addConstraint(Sketcher.Constraint("Horizontal", 13, 2, 39, 2))
sketch3.addConstraint(Sketcher.Constraint("Vertical", 8, 2, 16, 2))
sketch3.addConstraint(Sketcher.Constraint("Vertical", 15, 2, 18, 2))
sketch3.addConstraint(Sketcher.Constraint("Vertical", 19, 2, 25, 2))
sketch3.addConstraint(Sketcher.Constraint("Vertical", 34, 2, 37, 2))
sketch3.addConstraint(Sketcher.Constraint("Equal", 16, 29))
sketch3.addConstraint(Sketcher.Constraint("Equal", 10, 11))
sketch3.addConstraint(Sketcher.Constraint("Equal", 12, 15))
sketch3.addConstraint(Sketcher.Constraint("Equal", 8, 19))
sketch3.addConstraint(Sketcher.Constraint("Radius", 0, 13.0))
sketch3.addConstraint(Sketcher.Constraint("Radius", 3, 11.0))
sketch3.addConstraint(Sketcher.Constraint("Radius", 13, 49.0))
sketch3.addConstraint(Sketcher.Constraint("Angle", 8, Q("-120 deg")))
sketch3.addConstraint(Sketcher.Constraint("DistanceY", 7, 2, -1, 1, 20.0))
sketch3.addConstraint(Sketcher.Constraint("DistanceY", -1, 1, 21, 2, 40.0))
sketch3.addConstraint(Sketcher.Constraint("DistanceY", 0, 2, 5, 1, 1.0))
sketch3.addConstraint(Sketcher.Constraint("DistanceY", 21, 1, 21, 2, 7.15))
sketch3.addConstraint(Sketcher.Constraint("DistanceY", 0, 2, -1, 1, 6.5))
sketch3.addConstraint(Sketcher.Constraint("DistanceY", 13, 2, -1, 1, 24.5))
sketch3.addConstraint(Sketcher.Constraint("DistanceY", 8, 2, 16, 2, 14.3))
sketch3.addConstraint(Sketcher.Constraint("Distance", 31, 4.369999))
sketch3.addConstraint(Sketcher.Constraint("DistanceY", -1, 1, 28, 2, 47.15))
sketch3.addConstraint(Sketcher.Constraint("DistanceX", 16, 1, 16, 2, 8.256109))
sketch3.addConstraint(Sketcher.Constraint("DistanceX", 11, 2, 17, 2, 9.830498))
sketch3.addConstraint(Sketcher.Constraint("Distance", 7, 4.435438))
sketch3.addConstraint(Sketcher.Constraint("Distance", 32, 6.654772))
sketch3.addConstraint(Sketcher.Constraint("DistanceX", -1, 1, 35, 2, 32.52038))
sketch3.addConstraint(Sketcher.Constraint("DistanceX", 11, 2, 9, 2, 18.771771))
pad3 = doc.addObject("PartDesign::Pad", "Pad002")
body.addObject(pad3)
pad3.Profile = sketch3
pad3.Length = 9

# Sketch on XY plane
sketch4 = doc.addObject("Sketcher::SketchObject", "Sketch003")
body.addObject(sketch4)
sketch4.AttachmentSupport = (doc.XY_Plane, [""])
sketch4.MapMode = "FlatFace"
sketch4.AttachmentOffset = App.Placement(V(0, 0, 1), App.Rotation())
add_polygon(sketch4, [(0, -40), (0, -46), (3, -46), (3, -40)])  # lines 0-3
add_polygon(sketch4, [(0, 21), (0, 15), (3, 15), (3, 21)])  # lines 4-7
sketch4.addConstraint(Sketcher.Constraint("Vertical", 0))
sketch4.addConstraint(Sketcher.Constraint("Horizontal", 1))
sketch4.addConstraint(Sketcher.Constraint("Vertical", 2))
sketch4.addConstraint(Sketcher.Constraint("Horizontal", 3))
sketch4.addConstraint(Sketcher.Constraint("Vertical", 4))
sketch4.addConstraint(Sketcher.Constraint("Horizontal", 5))
sketch4.addConstraint(Sketcher.Constraint("Vertical", 6))
sketch4.addConstraint(Sketcher.Constraint("Horizontal", 7))
sketch4.addConstraint(Sketcher.Constraint("PointOnObject", 0, 2, -2))
sketch4.addConstraint(Sketcher.Constraint("PointOnObject", 4, 2, -2))
sketch4.addConstraint(Sketcher.Constraint("Vertical", 2, 2, 5, 2))
sketch4.addConstraint(Sketcher.Constraint("Equal", 2, 4))
sketch4.addConstraint(Sketcher.Constraint("DistanceX", 1, 1, 1, 2, 3.0))
sketch4.addConstraint(Sketcher.Constraint("DistanceY", 0, 2, 0, 1, 6.0))
sketch4.addConstraint(Sketcher.Constraint("DistanceY", 0, 2, -1, 1, 46.0))
sketch4.addConstraint(Sketcher.Constraint("DistanceY", -1, 1, 4, 2, 15.0))
pad4 = doc.addObject("PartDesign::Pad", "Pad003")
body.addObject(pad4)
pad4.Profile = sketch4
pad4.Length = 7

# Sketch on YZ plane
sketch5 = doc.addObject("Sketcher::SketchObject", "Sketch004")
body.addObject(sketch5)
sketch5.AttachmentSupport = (doc.YZ_Plane, [""])
sketch5.MapMode = "FlatFace"
sketch5.AttachmentOffset = App.Placement(V(0, 0, 3), App.Rotation())
sketch5.addGeometry(Part.Circle(V(26.47, 6.58, 0), V(0, 0, 1), 0.47), False)
sketch5.addGeometry(Part.Circle(V(29.47, 6.58, 0), V(0, 0, 1), 0.47), False)
sketch5.addGeometry(Part.Circle(V(-44.16, 5.53, 0), V(0, 0, 1), 0.47), False)
sketch5.addGeometry(Part.Circle(V(-41.16, 5.53, 0), V(0, 0, 1), 0.47), False)
sketch5.addConstraint(Sketcher.Constraint("Equal", 0, 1))
sketch5.addConstraint(Sketcher.Constraint("Equal", 1, 2))
sketch5.addConstraint(Sketcher.Constraint("Equal", 2, 3))
sketch5.addConstraint(Sketcher.Constraint("Horizontal", 0, 3, 1, 3))
sketch5.addConstraint(Sketcher.Constraint("Horizontal", 2, 3, 3, 3))
sketch5.addConstraint(Sketcher.Constraint("Diameter", 0, 0.95))
sketch5.addConstraint(Sketcher.Constraint("DistanceX", 0, 3, 1, 3, 3.0))
sketch5.addConstraint(Sketcher.Constraint("DistanceX", 2, 3, 3, 3, 3.0))
sketch5.addConstraint(Sketcher.Constraint("DistanceY", -1, 1, 2, 3, 5.525))
sketch5.addConstraint(Sketcher.Constraint("DistanceX", -1, 1, 0, 3, 26.467102))
sketch5.addConstraint(Sketcher.Constraint("DistanceX", 2, 3, -1, 1, 44.159941))
sketch5.addConstraint(Sketcher.Constraint("DistanceY", -1, 1, 0, 3, 6.581543))
pocket1 = doc.addObject("PartDesign::Pocket", "Pocket")
body.addObject(pocket1)
pocket1.Profile = sketch5
pocket1.Length = 3

# Sketch on XY plane
sketch6 = doc.addObject("Sketcher::SketchObject", "Sketch005")
body.addObject(sketch6)
sketch6.AttachmentSupport = (doc.XY_Plane, [""])
sketch6.MapMode = "FlatFace"
sketch6.AttachmentOffset = App.Placement(V(0, 0, 1), App.Rotation())
sketch6.addGeometry(Part.ArcOfCircle(Part.Circle(V(22.2, 17.5, 0), V(0, 0, 1), 20), math.radians(-9.07), math.radians(0)), False)
sketch6.addGeometry(Part.ArcOfCircle(Part.Circle(V(22.2, 17.5, 0), V(0, 0, 1), 20), math.radians(0), math.radians(39)), False)
sketch6.addGeometry(Part.LineSegment(V(37.6, 30.2, 0), V(6.7, 30.2, 0)), False)
sketch6.addGeometry(Part.ArcOfCircle(Part.Circle(V(22.2, 17.5, 0), V(0, 0, 1), 20), math.radians(141), math.radians(170)), False)
sketch6.addGeometry(Part.LineSegment(V(2.5, 21, 0), V(3, 21, 0)), False)
sketch6.addGeometry(Part.LineSegment(V(3, 21, 0), V(3, 15, 0)), False)
sketch6.addGeometry(Part.LineSegment(V(3, 15, 0), V(2.3, 15, 0)), False)
sketch6.addGeometry(Part.ArcOfCircle(Part.Circle(V(22.2, 17.5, 0), V(0, 0, 1), 20), math.radians(-172.85), math.radians(-170.93)), False)
sketch6.addGeometry(Part.LineSegment(V(2.4, 14.3, 0), V(41.9, 14.3, 0)), False)
sketch6.addConstraint(Sketcher.Constraint("Tangent", 0, 2, 1, 1))
sketch6.addConstraint(Sketcher.Constraint("Coincident", 1, 2, 2, 1))
sketch6.addConstraint(Sketcher.Constraint("Coincident", 2, 2, 3, 1))
sketch6.addConstraint(Sketcher.Constraint("Coincident", 3, 2, 4, 1))
sketch6.addConstraint(Sketcher.Constraint("Coincident", 4, 2, 5, 1))
sketch6.addConstraint(Sketcher.Constraint("Coincident", 5, 2, 6, 1))
sketch6.addConstraint(Sketcher.Constraint("Coincident", 6, 2, 7, 1))
sketch6.addConstraint(Sketcher.Constraint("Coincident", 7, 2, 8, 1))
sketch6.addConstraint(Sketcher.Constraint("Coincident", 8, 2, 0, 1))
sketch6.addConstraint(Sketcher.Constraint("Horizontal", 2))
sketch6.addConstraint(Sketcher.Constraint("Horizontal", 4))
sketch6.addConstraint(Sketcher.Constraint("Vertical", 5))
sketch6.addConstraint(Sketcher.Constraint("Horizontal", 6))
sketch6.addConstraint(Sketcher.Constraint("Horizontal", 8))
sketch6.addConstraint(Sketcher.Constraint("Coincident", 3, 3, 0, 3))
sketch6.addConstraint(Sketcher.Constraint("Coincident", 7, 3, 0, 3))
sketch6.addConstraint(Sketcher.Constraint("Equal", 0, 1))
sketch6.addConstraint(Sketcher.Constraint("Equal", 1, 3))
sketch6.addConstraint(Sketcher.Constraint("Equal", 3, 7))
sketch6.addConstraint(Sketcher.Constraint("Horizontal", 7, 3, 0, 2))
sketch6.addConstraint(Sketcher.Constraint("Radius", 0, 20.0))
sketch6.addConstraint(Sketcher.Constraint("DistanceY", 5, 2, 5, 1, 6.0))
sketch6.addConstraint(Sketcher.Constraint("DistanceX", 8, 1, 8, 2, 39.5))
sketch6.addConstraint(Sketcher.Constraint("DistanceY", -1, 1, 3, 2, 21.0))
sketch6.addConstraint(Sketcher.Constraint("DistanceX", -1, 1, 4, 2, 3.0))
sketch6.addConstraint(Sketcher.Constraint("DistanceY", 0, 2, 1, 2, 12.7))
sketch6.addConstraint(Sketcher.Constraint("DistanceX", 4, 1, 4, 2, 0.505377))
sketch6.addConstraint(Sketcher.Constraint("DistanceX", 6, 2, 6, 1, 0.660266))
pocket2 = doc.addObject("PartDesign::Pocket", "Pocket001")
body.addObject(pocket2)
pocket2.Profile = sketch6
pocket2.Length = 0.5

doc.recompute()
